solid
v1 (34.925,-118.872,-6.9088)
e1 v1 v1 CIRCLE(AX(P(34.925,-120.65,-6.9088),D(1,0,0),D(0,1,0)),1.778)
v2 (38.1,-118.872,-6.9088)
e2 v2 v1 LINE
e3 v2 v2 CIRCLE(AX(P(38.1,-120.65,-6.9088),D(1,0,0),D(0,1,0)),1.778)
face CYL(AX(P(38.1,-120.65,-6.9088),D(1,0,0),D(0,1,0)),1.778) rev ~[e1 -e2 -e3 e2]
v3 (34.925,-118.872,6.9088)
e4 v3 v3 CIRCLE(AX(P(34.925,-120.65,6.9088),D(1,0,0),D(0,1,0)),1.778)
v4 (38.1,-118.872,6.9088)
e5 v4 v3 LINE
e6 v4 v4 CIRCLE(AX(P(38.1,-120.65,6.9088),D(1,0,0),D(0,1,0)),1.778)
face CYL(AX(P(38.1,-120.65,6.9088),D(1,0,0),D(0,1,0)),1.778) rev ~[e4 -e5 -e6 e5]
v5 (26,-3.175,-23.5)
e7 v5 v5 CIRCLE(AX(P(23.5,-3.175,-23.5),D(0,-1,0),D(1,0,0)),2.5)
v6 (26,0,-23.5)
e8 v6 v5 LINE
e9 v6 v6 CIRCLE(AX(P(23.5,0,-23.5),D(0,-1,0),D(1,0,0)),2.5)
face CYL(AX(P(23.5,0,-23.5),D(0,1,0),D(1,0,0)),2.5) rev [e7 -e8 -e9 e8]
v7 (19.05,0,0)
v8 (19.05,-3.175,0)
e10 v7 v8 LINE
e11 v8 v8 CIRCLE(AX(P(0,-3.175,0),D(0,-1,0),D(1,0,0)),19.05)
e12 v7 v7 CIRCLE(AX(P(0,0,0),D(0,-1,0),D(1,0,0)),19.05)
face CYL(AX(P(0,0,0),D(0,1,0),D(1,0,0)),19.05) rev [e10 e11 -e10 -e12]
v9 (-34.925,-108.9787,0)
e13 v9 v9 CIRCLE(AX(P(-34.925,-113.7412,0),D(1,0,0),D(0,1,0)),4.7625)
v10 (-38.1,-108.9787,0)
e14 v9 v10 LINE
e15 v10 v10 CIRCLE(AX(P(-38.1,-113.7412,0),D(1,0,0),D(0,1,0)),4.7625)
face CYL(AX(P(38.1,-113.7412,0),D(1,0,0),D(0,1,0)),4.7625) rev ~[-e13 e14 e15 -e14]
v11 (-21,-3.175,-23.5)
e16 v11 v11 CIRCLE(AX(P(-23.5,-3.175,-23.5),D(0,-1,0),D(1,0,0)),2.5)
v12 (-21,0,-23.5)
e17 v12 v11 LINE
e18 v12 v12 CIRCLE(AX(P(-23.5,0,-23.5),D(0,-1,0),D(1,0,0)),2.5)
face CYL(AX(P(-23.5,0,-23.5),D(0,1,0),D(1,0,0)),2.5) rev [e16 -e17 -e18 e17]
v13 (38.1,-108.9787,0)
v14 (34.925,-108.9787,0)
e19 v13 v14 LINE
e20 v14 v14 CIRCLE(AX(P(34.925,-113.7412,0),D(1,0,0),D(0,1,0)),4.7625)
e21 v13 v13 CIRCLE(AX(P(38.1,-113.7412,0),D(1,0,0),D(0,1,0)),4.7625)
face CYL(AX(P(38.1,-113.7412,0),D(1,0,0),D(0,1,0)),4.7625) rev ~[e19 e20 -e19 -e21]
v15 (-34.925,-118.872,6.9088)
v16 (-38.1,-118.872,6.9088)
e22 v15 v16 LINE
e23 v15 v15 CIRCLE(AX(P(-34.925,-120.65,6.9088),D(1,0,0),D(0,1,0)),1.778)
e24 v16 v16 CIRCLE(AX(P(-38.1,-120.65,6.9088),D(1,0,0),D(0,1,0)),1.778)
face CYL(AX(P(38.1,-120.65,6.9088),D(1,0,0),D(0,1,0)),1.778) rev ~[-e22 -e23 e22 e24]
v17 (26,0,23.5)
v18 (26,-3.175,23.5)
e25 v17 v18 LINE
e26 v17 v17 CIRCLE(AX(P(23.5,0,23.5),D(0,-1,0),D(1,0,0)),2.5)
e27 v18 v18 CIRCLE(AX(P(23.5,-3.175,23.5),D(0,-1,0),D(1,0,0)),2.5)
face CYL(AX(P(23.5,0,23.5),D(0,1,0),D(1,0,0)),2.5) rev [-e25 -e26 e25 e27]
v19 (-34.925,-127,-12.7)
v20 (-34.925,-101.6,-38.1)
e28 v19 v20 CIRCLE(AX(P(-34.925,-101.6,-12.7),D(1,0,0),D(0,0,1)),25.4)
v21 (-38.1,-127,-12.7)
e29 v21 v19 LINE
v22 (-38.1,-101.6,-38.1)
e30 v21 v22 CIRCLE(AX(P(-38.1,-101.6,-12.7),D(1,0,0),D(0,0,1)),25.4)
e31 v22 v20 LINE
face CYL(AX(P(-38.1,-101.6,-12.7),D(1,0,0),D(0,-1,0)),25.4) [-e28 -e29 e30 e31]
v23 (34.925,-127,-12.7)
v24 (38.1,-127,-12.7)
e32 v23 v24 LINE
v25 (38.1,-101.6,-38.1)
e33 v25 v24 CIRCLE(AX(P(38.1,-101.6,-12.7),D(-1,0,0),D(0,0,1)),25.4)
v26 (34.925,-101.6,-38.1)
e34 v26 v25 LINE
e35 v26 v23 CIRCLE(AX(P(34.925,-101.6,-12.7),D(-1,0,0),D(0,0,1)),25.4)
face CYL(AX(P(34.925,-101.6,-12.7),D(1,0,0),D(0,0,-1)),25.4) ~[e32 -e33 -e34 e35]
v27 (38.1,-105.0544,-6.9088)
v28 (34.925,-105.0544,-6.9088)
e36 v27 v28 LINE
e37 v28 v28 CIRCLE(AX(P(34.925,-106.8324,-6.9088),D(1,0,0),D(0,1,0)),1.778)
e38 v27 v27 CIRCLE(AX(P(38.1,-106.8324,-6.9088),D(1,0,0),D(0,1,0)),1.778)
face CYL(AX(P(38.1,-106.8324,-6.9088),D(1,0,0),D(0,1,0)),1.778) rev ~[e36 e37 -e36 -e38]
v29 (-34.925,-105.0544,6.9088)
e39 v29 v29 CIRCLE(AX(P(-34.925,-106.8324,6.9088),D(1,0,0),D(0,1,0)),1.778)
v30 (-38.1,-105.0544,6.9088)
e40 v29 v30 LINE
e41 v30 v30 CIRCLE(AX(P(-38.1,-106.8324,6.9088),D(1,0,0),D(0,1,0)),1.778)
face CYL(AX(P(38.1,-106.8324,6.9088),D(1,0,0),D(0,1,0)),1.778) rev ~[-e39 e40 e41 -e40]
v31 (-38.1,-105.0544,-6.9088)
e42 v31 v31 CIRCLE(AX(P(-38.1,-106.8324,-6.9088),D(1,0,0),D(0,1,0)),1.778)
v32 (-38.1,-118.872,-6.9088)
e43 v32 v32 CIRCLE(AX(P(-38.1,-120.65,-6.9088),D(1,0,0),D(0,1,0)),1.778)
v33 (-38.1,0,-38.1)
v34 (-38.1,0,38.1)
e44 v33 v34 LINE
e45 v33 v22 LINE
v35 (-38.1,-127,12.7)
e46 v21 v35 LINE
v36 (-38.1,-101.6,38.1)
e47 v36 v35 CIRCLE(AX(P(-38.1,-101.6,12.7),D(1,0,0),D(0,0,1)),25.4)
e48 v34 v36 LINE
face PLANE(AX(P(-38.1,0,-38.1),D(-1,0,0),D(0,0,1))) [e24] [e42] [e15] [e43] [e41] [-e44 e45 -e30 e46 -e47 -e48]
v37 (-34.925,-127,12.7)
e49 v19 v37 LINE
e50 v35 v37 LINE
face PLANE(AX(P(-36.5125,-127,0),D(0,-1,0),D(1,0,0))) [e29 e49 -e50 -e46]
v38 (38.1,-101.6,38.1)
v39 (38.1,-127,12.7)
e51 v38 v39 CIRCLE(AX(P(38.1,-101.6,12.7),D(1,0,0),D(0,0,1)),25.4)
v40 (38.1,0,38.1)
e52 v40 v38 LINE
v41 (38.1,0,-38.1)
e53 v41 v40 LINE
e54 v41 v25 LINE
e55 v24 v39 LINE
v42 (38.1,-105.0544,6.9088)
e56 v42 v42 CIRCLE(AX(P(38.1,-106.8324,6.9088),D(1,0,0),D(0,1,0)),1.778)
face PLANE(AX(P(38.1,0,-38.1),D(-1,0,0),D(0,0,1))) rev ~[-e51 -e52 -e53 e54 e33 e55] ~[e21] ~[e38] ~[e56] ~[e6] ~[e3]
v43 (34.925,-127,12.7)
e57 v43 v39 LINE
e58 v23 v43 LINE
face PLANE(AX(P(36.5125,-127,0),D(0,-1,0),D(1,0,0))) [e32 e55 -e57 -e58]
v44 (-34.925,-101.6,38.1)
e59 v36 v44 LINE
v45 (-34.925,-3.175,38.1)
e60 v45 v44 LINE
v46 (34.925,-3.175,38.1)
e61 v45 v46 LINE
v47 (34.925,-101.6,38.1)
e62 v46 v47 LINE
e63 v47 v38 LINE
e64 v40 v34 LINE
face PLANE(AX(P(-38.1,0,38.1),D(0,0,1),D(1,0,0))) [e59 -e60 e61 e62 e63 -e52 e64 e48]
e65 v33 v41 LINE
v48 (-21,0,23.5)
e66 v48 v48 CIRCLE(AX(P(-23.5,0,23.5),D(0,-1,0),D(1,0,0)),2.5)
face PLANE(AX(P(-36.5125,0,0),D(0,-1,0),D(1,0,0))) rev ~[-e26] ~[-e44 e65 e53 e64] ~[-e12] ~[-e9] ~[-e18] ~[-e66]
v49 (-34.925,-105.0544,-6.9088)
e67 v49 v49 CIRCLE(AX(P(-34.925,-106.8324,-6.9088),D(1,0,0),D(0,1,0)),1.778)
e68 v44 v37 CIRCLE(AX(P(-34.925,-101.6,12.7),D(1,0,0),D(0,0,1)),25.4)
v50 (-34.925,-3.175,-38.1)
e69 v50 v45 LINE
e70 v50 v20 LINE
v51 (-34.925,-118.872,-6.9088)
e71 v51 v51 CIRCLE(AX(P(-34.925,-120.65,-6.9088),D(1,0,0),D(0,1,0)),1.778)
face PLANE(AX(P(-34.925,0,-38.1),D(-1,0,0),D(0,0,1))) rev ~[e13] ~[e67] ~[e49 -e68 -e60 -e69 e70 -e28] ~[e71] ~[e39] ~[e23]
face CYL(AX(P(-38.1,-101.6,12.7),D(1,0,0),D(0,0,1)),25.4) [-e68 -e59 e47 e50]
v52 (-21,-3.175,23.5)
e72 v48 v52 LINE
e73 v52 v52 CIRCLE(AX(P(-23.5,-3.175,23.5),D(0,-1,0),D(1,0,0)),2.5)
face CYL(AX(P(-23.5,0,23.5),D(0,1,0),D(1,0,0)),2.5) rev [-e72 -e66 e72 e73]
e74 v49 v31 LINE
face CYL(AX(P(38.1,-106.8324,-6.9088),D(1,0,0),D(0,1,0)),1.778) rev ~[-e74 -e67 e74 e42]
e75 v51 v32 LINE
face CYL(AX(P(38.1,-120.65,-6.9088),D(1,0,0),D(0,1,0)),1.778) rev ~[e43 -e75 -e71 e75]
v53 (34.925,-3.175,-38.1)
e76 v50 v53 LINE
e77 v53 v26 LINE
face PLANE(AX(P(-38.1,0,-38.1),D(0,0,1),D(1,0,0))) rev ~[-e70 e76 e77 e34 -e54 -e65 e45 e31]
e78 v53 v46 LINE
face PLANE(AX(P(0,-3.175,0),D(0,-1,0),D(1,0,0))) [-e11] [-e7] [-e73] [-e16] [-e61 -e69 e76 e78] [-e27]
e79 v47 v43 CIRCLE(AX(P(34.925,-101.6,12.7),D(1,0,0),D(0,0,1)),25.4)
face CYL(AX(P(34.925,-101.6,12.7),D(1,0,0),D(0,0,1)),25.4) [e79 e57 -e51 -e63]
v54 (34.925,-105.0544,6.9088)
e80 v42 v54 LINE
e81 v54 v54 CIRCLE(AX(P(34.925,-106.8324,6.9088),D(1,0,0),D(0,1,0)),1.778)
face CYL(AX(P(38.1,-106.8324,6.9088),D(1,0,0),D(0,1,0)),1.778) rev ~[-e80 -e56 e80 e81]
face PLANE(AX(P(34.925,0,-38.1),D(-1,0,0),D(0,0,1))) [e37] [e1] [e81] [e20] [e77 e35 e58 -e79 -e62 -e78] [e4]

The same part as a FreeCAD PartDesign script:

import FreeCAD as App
import Part
import Sketcher
from FreeCAD import Vector
Q = App.Units.Quantity


def edges_at(feature, points):
    """Names of the edges that pass closest to the given points."""
    edges = feature.Shape.Edges
    near = lambda p: min(range(len(edges)), key=lambda i: edges[i].distToShape(Part.Vertex(*p))[0])
    return sorted({f"Edge{near(p) + 1}" for p in points})

doc = App.newDocument("Part")
body = doc.addObject("PartDesign::Body", "Body")

# Sketch on XZ plane
sketch1 = body.newObject("Sketcher::SketchObject", "Sketch")
sketch1.AttachmentSupport = (doc.getObject("XZ_Plane"), [""])
sketch1.MapMode = "FlatFace"
sketch1.addGeometry([
    Part.LineSegment(Vector(-34.925, 38.1, 0), Vector(-34.925, -38.1, 0)),  # 0
    Part.LineSegment(Vector(-34.925, -38.1, 0), Vector(34.925, -38.1, 0)),  # 1
    Part.LineSegment(Vector(34.925, -38.1, 0), Vector(34.925, 38.1, 0)),  # 2
    Part.LineSegment(Vector(34.925, 38.1, 0), Vector(-34.925, 38.1, 0)),  # 3
    Part.Circle(Vector(-23.5, -23.5, 0), Vector(0, 0, 1), 2.5),  # 4
    Part.Circle(Vector(23.5, -23.5, 0), Vector(0, 0, 1), 2.5),  # 5
    Part.Circle(Vector(-23.5, 23.5, 0), Vector(0, 0, 1), 2.5),  # 6
    Part.Circle(Vector(0, 0, 0), Vector(0, 0, 1), 19.05),  # 7
    Part.Circle(Vector(23.5, 23.5, 0), Vector(0, 0, 1), 2.5),  # 8
], False)
sketch1.addConstraint([
    Sketcher.Constraint("Coincident", 0, 2, 1, 1),
    Sketcher.Constraint("Coincident", 1, 2, 2, 1),
    Sketcher.Constraint("Coincident", 2, 2, 3, 1),
    Sketcher.Constraint("Coincident", 3, 2, 0, 1),
    Sketcher.Constraint("Vertical", 0),
    Sketcher.Constraint("Horizontal", 1),
    Sketcher.Constraint("Vertical", 2),
    Sketcher.Constraint("Horizontal", 3),
    Sketcher.Constraint("Coincident", 7, 3, -1, 1),
    Sketcher.Constraint("Equal", 4, 5),
    Sketcher.Constraint("Equal", 5, 6),
    Sketcher.Constraint("Equal", 6, 8),
    Sketcher.Constraint("Symmetric", 5, 3, 6, 3, -1, 1),
    Sketcher.Constraint("Symmetric", 4, 3, 8, 3, -1, 1),
    Sketcher.Constraint("Symmetric", 0, 2, 2, 2, -1, 1),
    Sketcher.Constraint("Symmetric", 4, 3, 5, 3, -2),
    Sketcher.Constraint("Diameter", 7, Q("1.5 in")),
    Sketcher.Constraint("DistanceY", 0, 2, 0, 1, Q("3 in")),
    Sketcher.Constraint("DistanceX", 1, 1, 1, 2, Q("2.75 in")),
    Sketcher.Constraint("Diameter", 4, 5.0),
    Sketcher.Constraint("DistanceX", 4, 3, -1, 1, 23.5),
    Sketcher.Constraint("DistanceY", 4, 3, -1, 1, 23.5),
])
pad1 = body.newObject("PartDesign::Pad", "Pad")
pad1.Profile = sketch1
pad1.Length = Q("0.125 in")

# Sketch on XZ plane
sketch2 = body.newObject("Sketcher::SketchObject", "Sketch001")
sketch2.AttachmentSupport = (doc.getObject("XZ_Plane"), [""])
sketch2.MapMode = "FlatFace"
sketch2.addGeometry([
    Part.LineSegment(Vector(-38.1, 38.1, 0), Vector(-38.1, -38.1, 0)),  # 0
    Part.LineSegment(Vector(-38.1, -38.1, 0), Vector(-34.925, -38.1, 0)),  # 1
    Part.LineSegment(Vector(-34.925, -38.1, 0), Vector(-34.925, 38.1, 0)),  # 2
    Part.LineSegment(Vector(-34.925, 38.1, 0), Vector(-38.1, 38.1, 0)),  # 3
    Part.LineSegment(Vector(34.925, 38.1, 0), Vector(34.925, -38.1, 0)),  # 4
    Part.LineSegment(Vector(34.925, -38.1, 0), Vector(38.1, -38.1, 0)),  # 5
    Part.LineSegment(Vector(38.1, -38.1, 0), Vector(38.1, 38.1, 0)),  # 6
    Part.LineSegment(Vector(38.1, 38.1, 0), Vector(34.925, 38.1, 0)),  # 7
], False)
sketch2.addConstraint([
    Sketcher.Constraint("Coincident", 0, 2, 1, 1),
    Sketcher.Constraint("Coincident", 1, 2, 2, 1),
    Sketcher.Constraint("Coincident", 2, 2, 3, 1),
    Sketcher.Constraint("Coincident", 3, 2, 0, 1),
    Sketcher.Constraint("Coincident", 4, 2, 5, 1),
    Sketcher.Constraint("Coincident", 5, 2, 6, 1),
    Sketcher.Constraint("Coincident", 6, 2, 7, 1),
    Sketcher.Constraint("Coincident", 7, 2, 4, 1),
    Sketcher.Constraint("Vertical", 0),
    Sketcher.Constraint("Horizontal", 1),
    Sketcher.Constraint("Vertical", 2),
    Sketcher.Constraint("Horizontal", 3),
    Sketcher.Constraint("Vertical", 4),
    Sketcher.Constraint("Horizontal", 5),
    Sketcher.Constraint("Vertical", 6),
    Sketcher.Constraint("Horizontal", 7),
    Sketcher.Constraint("Symmetric", 2, 2, 4, 2, -1, 1),
    Sketcher.Constraint("Symmetric", 0, 2, 6, 2, -1, 1),
    Sketcher.Constraint("Horizontal", 1, 2, 4, 2),
    Sketcher.Constraint("DistanceY", 0, 2, 0, 1, Q("3 in")),
    Sketcher.Constraint("DistanceX", 0, 2, 5, 2, Q("3 in")),
    Sketcher.Constraint("DistanceX", 1, 1, 1, 2, Q("0.125 in")),
])
pad2 = body.newObject("PartDesign::Pad", "Pad001")
pad2.Profile = sketch2
pad2.Length = Q("5 in")

# Sketch on YZ plane
sketch3 = body.newObject("Sketcher::SketchObject", "Sketch002")
sketch3.AttachmentSupport = (doc.getObject("YZ_Plane"), [""])
sketch3.MapMode = "FlatFace"
sketch3.AttachmentOffset = App.Placement(Vector(0, 0, 1.5 * 25.4), App.Rotation())
sketch3.addGeometry([
    Part.Circle(Vector(-120.65, 6.9088, 0), Vector(0, 0, 1), 1.778),  # 0
    Part.Circle(Vector(-106.8324, 6.9088, 0), Vector(0, 0, 1), 1.778),  # 1
    Part.Circle(Vector(-106.8324, -6.9088, 0), Vector(0, 0, 1), 1.778),  # 2
    Part.Circle(Vector(-120.65, -6.9088, 0), Vector(0, 0, 1), 1.778),  # 3
    Part.Circle(Vector(-113.7412, 0, 0), Vector(0, 0, 1), 4.7625),  # 4
], False)
sketch3.addConstraint([
    Sketcher.Constraint("Equal", 0, 1),
    Sketcher.Constraint("Equal", 1, 2),
    Sketcher.Constraint("Equal", 2, 3),
    Sketcher.Constraint("Symmetric", 1, 3, 2, 3, -1),
    Sketcher.Constraint("Symmetric", 0, 3, 3, 3, -1),
    Sketcher.Constraint("PointOnObject", 4, 3, -1),
    Sketcher.Constraint("Horizontal", 0, 3, 1, 3),
    Sketcher.Constraint("Diameter", 0, Q("0.14 in")),
    Sketcher.Constraint("Diameter", 4, Q("0.375 in")),
    Sketcher.Constraint("DistanceX", 0, 3, -1, 1, Q("4.75 in")),
    Sketcher.Constraint("DistanceY", -1, 1, 0, 3, Q("0.272 in")),
    Sketcher.Constraint("DistanceX", 1, 3, -1, 1, Q("4.206 in")),
    Sketcher.Constraint("DistanceX", 4, 3, -1, 1, Q("4.478 in")),
])
pocket1 = body.newObject("PartDesign::Pocket", "Pocket")
pocket1.Profile = sketch3
pocket1.Type = "ThroughAll"
doc.recompute()

fillet = body.newObject("PartDesign::Fillet", "Fillet")
fillet.Base = (pocket1, edges_at(pocket1, [(36.513, -127, 38.1)]))
fillet.Radius = Q("1 in")
doc.recompute()

fillet2 = body.newObject("PartDesign::Fillet", "Fillet001")
fillet2.Base = (fillet, edges_at(fillet, [(-36.513, -127, 38.1)]))
fillet2.Radius = Q("1 in")
doc.recompute()

fillet3 = body.newObject("PartDesign::Fillet", "Fillet002")
fillet3.Base = (fillet2, edges_at(fillet2, [(-36.513, -127, -38.1)]))
fillet3.Radius = Q("1 in")
doc.recompute()

fillet4 = body.newObject("PartDesign::Fillet", "Fillet003")
fillet4.Base = (fillet3, edges_at(fillet3, [(36.513, -127, -38.1)]))
fillet4.Radius = Q("1 in")

doc.recompute()
